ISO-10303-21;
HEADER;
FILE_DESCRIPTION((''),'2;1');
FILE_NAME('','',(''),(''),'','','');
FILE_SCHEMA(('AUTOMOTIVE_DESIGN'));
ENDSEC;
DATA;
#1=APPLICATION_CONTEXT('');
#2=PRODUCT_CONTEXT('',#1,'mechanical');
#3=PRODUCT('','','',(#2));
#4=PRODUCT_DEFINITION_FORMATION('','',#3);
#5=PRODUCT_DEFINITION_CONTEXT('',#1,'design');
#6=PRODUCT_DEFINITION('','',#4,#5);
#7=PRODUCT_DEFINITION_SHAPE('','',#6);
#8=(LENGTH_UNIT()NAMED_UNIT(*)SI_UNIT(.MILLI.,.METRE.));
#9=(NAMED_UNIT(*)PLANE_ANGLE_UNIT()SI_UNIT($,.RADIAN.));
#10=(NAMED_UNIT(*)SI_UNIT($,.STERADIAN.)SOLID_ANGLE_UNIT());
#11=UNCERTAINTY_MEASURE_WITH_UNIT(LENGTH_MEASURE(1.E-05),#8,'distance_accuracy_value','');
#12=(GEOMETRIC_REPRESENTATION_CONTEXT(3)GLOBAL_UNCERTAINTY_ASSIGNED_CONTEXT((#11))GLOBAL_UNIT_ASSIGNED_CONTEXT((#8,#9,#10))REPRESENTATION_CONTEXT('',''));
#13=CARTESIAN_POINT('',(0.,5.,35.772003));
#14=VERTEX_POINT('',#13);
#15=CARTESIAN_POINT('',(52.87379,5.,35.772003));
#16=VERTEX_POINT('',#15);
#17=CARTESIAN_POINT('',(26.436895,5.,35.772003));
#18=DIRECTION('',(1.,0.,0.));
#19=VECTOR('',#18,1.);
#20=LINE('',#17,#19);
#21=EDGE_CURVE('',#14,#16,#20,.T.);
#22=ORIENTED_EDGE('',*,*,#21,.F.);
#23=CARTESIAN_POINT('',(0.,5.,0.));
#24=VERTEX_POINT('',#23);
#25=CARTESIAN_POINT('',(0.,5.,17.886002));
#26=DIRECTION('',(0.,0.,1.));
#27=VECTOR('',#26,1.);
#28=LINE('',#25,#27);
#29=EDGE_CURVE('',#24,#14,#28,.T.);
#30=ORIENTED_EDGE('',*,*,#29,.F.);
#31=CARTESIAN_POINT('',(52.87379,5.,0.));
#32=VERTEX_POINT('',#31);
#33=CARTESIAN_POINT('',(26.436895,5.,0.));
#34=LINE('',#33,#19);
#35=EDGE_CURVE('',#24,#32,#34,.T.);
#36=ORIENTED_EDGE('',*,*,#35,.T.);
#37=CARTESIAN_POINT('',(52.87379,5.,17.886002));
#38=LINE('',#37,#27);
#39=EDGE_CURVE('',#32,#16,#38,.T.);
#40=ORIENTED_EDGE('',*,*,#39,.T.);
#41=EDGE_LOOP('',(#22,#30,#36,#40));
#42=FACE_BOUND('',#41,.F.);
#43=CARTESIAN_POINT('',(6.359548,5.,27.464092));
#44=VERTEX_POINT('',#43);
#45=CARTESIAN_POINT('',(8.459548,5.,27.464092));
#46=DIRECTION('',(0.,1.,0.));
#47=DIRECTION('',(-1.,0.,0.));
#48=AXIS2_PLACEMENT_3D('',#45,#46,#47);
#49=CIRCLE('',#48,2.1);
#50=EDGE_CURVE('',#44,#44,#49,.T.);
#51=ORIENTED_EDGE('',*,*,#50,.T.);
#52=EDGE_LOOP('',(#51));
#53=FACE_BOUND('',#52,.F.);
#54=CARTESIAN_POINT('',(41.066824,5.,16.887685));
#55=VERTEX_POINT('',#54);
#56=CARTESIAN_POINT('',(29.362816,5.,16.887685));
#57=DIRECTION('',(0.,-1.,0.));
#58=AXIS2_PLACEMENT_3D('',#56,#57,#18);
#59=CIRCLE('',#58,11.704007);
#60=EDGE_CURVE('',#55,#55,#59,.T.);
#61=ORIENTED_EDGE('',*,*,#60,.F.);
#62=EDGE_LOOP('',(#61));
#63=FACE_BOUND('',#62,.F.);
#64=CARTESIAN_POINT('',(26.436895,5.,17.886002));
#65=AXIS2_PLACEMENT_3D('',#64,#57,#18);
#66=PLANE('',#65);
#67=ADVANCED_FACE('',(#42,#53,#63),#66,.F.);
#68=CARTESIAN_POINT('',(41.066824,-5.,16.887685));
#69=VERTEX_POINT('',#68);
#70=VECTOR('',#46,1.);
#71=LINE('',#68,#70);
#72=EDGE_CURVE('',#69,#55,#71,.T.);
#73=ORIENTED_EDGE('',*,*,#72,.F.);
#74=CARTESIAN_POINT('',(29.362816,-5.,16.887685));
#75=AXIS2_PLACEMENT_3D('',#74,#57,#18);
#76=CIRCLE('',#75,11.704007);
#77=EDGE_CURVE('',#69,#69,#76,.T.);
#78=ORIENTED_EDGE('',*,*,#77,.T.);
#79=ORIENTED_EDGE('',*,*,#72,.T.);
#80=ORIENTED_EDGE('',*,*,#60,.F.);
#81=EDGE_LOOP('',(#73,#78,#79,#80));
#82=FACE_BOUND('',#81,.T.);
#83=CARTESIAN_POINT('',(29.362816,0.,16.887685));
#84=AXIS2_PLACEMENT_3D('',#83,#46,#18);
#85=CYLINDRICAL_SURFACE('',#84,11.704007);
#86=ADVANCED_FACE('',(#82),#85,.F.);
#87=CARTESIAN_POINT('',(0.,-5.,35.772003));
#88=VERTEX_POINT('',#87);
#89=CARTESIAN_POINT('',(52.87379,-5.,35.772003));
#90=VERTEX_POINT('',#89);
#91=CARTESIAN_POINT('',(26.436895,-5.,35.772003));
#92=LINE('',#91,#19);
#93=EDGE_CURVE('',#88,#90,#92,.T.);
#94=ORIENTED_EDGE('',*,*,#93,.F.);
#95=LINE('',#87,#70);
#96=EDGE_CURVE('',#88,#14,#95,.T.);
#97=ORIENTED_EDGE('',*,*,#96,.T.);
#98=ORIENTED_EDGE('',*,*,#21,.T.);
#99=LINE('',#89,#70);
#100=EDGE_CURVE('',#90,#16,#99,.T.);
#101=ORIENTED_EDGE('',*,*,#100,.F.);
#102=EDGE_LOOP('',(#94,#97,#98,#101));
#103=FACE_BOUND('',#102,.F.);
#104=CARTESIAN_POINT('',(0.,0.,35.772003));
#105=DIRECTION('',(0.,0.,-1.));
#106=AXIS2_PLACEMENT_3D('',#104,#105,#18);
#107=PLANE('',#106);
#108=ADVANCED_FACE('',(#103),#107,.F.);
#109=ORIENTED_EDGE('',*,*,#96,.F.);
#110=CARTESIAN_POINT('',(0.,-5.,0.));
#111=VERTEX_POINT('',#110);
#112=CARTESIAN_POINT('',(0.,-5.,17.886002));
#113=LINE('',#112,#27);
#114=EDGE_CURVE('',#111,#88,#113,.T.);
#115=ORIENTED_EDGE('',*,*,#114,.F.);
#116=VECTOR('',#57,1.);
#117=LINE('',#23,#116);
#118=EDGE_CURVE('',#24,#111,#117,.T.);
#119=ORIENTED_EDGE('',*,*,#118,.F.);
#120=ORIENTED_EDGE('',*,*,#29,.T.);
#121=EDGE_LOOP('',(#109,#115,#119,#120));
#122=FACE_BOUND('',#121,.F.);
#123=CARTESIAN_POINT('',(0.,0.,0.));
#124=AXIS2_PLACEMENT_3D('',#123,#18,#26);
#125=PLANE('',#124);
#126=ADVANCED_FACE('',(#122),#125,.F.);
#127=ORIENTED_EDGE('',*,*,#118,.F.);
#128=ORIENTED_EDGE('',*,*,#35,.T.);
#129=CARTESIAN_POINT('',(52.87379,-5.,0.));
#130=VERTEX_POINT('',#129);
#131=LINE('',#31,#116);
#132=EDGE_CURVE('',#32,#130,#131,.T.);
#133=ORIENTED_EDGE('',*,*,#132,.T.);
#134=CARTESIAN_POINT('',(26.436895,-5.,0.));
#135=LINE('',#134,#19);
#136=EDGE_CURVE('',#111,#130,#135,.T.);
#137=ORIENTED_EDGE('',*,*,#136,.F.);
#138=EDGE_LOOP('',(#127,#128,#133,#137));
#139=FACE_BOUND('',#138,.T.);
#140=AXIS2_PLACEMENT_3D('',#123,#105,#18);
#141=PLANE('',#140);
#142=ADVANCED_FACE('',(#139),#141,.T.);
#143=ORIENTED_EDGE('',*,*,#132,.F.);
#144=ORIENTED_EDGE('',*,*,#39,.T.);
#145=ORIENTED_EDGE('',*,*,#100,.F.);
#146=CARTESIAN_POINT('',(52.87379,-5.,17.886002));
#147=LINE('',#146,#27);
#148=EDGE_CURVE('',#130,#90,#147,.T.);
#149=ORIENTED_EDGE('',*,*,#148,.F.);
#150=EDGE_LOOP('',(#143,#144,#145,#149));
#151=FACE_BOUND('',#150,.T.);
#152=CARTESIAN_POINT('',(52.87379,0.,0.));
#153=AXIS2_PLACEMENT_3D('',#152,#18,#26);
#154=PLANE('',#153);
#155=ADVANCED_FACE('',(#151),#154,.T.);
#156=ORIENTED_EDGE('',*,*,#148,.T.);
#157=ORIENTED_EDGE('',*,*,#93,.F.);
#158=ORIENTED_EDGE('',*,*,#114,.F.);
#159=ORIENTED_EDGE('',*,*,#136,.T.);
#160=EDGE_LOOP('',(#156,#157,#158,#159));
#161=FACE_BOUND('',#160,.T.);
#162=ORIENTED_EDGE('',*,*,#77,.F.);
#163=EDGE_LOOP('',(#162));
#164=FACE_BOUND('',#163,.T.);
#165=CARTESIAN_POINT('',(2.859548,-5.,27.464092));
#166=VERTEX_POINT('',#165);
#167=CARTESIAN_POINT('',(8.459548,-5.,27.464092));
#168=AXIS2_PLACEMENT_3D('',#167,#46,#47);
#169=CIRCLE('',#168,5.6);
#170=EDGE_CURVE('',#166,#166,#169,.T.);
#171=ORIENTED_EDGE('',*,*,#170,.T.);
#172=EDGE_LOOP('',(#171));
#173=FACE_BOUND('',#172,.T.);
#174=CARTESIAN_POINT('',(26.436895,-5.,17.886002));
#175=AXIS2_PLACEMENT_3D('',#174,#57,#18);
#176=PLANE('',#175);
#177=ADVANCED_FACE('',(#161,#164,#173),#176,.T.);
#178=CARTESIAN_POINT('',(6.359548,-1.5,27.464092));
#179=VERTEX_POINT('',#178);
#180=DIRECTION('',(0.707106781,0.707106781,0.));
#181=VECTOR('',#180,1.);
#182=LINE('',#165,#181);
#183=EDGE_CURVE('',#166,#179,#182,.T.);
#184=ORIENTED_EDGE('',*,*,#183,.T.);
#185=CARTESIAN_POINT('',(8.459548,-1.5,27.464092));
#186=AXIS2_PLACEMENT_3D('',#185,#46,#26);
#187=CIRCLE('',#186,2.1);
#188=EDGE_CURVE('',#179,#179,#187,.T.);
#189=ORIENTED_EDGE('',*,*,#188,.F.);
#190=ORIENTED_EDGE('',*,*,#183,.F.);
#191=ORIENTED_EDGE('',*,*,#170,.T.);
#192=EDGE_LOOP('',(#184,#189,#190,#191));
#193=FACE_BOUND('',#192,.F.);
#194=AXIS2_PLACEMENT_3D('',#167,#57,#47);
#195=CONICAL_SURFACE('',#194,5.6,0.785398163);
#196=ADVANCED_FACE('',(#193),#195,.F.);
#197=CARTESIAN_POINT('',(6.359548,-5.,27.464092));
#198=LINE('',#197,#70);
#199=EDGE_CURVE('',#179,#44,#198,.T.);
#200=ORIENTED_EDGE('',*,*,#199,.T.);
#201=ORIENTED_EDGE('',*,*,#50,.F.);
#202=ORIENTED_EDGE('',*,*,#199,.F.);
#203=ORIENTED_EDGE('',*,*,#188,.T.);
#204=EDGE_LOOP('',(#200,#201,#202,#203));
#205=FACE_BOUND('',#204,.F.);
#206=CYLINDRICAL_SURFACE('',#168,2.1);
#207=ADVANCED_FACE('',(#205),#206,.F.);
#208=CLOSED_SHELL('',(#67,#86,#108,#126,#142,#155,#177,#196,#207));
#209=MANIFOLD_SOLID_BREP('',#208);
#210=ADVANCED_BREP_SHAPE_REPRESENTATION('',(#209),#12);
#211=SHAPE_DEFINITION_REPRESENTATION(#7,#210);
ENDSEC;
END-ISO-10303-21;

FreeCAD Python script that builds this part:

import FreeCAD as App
import Part
import Sketcher
Q = App.Units.Quantity

doc = App.newDocument("Part")
body = doc.addObject("PartDesign::Body", "Body")

# Sketch on XZ plane
sketch1 = body.newObject("Sketcher::SketchObject", "Sketch")
sketch1.AttachmentSupport = (doc.getObject("XZ_Plane"), [""])
sketch1.MapMode = "FlatFace"
sketch1.addGeometry(Part.LineSegment(App.Vector(0, 35.772003, 0), App.Vector(0, 0, 0)), False)
sketch1.addGeometry(Part.LineSegment(App.Vector(0, 0, 0), App.Vector(52.87379, 0, 0)), False)
sketch1.addGeometry(Part.LineSegment(App.Vector(52.87379, 0, 0), App.Vector(52.87379, 35.772003, 0)), False)
sketch1.addGeometry(Part.LineSegment(App.Vector(52.87379, 35.772003, 0), App.Vector(0, 35.772003, 0)), False)
sketch1.addGeometry(Part.Circle(App.Vector(29.362816, 16.887685, 0), App.Vector(0, 0, 1), 11.704007), False)
sketch1.addConstraint(Sketcher.Constraint("Coincident", 0, 2, 1, 1))
sketch1.addConstraint(Sketcher.Constraint("Coincident", 1, 2, 2, 1))
sketch1.addConstraint(Sketcher.Constraint("Coincident", 2, 2, 3, 1))
sketch1.addConstraint(Sketcher.Constraint("Coincident", 3, 2, 0, 1))
sketch1.addConstraint(Sketcher.Constraint("Vertical", 0))
sketch1.addConstraint(Sketcher.Constraint("Horizontal", 1))
sketch1.addConstraint(Sketcher.Constraint("Vertical", 2))
sketch1.addConstraint(Sketcher.Constraint("Horizontal", 3))
sketch1.addConstraint(Sketcher.Constraint("Coincident", 0, 2, -1, 1))
sketch1.addConstraint(Sketcher.Constraint("Diameter", 4, Q("23.408014 mm")))
sketch1.addConstraint(Sketcher.Constraint("DistanceX", 1, 1, 1, 2, Q("52.87379 mm")))
sketch1.addConstraint(Sketcher.Constraint("DistanceY", 0, 2, 0, 1, Q("35.772003 mm")))
sketch1.addConstraint(Sketcher.Constraint("DistanceX", -1, 1, 4, 3, Q("29.362816 mm")))
sketch1.addConstraint(Sketcher.Constraint("DistanceY", -1, 1, 4, 3, Q("16.887685 mm")))
pad1 = body.newObject("PartDesign::Pad", "Pad")
pad1.Profile = sketch1
pad1.Length = 10
pad1.Midplane = True

# Sketch on XZ plane
sketch2 = body.newObject("Sketcher::SketchObject", "Sketch001")
sketch2.AttachmentSupport = (doc.getObject("XZ_Plane"), [""])
sketch2.MapMode = "FlatFace"
sketch2.AttachmentOffset = App.Placement(App.Vector(0, 0, 5), App.Rotation())
sketch2.addGeometry(Part.Circle(App.Vector(8.459548, 27.464092, 0), App.Vector(0, 0, 1), 2.1), False)
sketch2.addConstraint(Sketcher.Constraint("Diameter", 0, Q("4.2 mm")))
sketch2.addConstraint(Sketcher.Constraint("DistanceX", -1, 1, 0, 3, Q("8.459548 mm")))
sketch2.addConstraint(Sketcher.Constraint("DistanceY", -1, 1, 0, 3, Q("27.464092 mm")))
doc.recompute()
hole = body.newObject("PartDesign::Hole", "Hole")
hole.Profile = sketch2
hole.ThreadType = "None"
hole.Diameter = 4.2
hole.DepthType = "ThroughAll"
hole.HoleCutType = "Countersink"
hole.HoleCutDiameter = 11.2
hole.HoleCutCountersinkAngle = 90

doc.recompute()
